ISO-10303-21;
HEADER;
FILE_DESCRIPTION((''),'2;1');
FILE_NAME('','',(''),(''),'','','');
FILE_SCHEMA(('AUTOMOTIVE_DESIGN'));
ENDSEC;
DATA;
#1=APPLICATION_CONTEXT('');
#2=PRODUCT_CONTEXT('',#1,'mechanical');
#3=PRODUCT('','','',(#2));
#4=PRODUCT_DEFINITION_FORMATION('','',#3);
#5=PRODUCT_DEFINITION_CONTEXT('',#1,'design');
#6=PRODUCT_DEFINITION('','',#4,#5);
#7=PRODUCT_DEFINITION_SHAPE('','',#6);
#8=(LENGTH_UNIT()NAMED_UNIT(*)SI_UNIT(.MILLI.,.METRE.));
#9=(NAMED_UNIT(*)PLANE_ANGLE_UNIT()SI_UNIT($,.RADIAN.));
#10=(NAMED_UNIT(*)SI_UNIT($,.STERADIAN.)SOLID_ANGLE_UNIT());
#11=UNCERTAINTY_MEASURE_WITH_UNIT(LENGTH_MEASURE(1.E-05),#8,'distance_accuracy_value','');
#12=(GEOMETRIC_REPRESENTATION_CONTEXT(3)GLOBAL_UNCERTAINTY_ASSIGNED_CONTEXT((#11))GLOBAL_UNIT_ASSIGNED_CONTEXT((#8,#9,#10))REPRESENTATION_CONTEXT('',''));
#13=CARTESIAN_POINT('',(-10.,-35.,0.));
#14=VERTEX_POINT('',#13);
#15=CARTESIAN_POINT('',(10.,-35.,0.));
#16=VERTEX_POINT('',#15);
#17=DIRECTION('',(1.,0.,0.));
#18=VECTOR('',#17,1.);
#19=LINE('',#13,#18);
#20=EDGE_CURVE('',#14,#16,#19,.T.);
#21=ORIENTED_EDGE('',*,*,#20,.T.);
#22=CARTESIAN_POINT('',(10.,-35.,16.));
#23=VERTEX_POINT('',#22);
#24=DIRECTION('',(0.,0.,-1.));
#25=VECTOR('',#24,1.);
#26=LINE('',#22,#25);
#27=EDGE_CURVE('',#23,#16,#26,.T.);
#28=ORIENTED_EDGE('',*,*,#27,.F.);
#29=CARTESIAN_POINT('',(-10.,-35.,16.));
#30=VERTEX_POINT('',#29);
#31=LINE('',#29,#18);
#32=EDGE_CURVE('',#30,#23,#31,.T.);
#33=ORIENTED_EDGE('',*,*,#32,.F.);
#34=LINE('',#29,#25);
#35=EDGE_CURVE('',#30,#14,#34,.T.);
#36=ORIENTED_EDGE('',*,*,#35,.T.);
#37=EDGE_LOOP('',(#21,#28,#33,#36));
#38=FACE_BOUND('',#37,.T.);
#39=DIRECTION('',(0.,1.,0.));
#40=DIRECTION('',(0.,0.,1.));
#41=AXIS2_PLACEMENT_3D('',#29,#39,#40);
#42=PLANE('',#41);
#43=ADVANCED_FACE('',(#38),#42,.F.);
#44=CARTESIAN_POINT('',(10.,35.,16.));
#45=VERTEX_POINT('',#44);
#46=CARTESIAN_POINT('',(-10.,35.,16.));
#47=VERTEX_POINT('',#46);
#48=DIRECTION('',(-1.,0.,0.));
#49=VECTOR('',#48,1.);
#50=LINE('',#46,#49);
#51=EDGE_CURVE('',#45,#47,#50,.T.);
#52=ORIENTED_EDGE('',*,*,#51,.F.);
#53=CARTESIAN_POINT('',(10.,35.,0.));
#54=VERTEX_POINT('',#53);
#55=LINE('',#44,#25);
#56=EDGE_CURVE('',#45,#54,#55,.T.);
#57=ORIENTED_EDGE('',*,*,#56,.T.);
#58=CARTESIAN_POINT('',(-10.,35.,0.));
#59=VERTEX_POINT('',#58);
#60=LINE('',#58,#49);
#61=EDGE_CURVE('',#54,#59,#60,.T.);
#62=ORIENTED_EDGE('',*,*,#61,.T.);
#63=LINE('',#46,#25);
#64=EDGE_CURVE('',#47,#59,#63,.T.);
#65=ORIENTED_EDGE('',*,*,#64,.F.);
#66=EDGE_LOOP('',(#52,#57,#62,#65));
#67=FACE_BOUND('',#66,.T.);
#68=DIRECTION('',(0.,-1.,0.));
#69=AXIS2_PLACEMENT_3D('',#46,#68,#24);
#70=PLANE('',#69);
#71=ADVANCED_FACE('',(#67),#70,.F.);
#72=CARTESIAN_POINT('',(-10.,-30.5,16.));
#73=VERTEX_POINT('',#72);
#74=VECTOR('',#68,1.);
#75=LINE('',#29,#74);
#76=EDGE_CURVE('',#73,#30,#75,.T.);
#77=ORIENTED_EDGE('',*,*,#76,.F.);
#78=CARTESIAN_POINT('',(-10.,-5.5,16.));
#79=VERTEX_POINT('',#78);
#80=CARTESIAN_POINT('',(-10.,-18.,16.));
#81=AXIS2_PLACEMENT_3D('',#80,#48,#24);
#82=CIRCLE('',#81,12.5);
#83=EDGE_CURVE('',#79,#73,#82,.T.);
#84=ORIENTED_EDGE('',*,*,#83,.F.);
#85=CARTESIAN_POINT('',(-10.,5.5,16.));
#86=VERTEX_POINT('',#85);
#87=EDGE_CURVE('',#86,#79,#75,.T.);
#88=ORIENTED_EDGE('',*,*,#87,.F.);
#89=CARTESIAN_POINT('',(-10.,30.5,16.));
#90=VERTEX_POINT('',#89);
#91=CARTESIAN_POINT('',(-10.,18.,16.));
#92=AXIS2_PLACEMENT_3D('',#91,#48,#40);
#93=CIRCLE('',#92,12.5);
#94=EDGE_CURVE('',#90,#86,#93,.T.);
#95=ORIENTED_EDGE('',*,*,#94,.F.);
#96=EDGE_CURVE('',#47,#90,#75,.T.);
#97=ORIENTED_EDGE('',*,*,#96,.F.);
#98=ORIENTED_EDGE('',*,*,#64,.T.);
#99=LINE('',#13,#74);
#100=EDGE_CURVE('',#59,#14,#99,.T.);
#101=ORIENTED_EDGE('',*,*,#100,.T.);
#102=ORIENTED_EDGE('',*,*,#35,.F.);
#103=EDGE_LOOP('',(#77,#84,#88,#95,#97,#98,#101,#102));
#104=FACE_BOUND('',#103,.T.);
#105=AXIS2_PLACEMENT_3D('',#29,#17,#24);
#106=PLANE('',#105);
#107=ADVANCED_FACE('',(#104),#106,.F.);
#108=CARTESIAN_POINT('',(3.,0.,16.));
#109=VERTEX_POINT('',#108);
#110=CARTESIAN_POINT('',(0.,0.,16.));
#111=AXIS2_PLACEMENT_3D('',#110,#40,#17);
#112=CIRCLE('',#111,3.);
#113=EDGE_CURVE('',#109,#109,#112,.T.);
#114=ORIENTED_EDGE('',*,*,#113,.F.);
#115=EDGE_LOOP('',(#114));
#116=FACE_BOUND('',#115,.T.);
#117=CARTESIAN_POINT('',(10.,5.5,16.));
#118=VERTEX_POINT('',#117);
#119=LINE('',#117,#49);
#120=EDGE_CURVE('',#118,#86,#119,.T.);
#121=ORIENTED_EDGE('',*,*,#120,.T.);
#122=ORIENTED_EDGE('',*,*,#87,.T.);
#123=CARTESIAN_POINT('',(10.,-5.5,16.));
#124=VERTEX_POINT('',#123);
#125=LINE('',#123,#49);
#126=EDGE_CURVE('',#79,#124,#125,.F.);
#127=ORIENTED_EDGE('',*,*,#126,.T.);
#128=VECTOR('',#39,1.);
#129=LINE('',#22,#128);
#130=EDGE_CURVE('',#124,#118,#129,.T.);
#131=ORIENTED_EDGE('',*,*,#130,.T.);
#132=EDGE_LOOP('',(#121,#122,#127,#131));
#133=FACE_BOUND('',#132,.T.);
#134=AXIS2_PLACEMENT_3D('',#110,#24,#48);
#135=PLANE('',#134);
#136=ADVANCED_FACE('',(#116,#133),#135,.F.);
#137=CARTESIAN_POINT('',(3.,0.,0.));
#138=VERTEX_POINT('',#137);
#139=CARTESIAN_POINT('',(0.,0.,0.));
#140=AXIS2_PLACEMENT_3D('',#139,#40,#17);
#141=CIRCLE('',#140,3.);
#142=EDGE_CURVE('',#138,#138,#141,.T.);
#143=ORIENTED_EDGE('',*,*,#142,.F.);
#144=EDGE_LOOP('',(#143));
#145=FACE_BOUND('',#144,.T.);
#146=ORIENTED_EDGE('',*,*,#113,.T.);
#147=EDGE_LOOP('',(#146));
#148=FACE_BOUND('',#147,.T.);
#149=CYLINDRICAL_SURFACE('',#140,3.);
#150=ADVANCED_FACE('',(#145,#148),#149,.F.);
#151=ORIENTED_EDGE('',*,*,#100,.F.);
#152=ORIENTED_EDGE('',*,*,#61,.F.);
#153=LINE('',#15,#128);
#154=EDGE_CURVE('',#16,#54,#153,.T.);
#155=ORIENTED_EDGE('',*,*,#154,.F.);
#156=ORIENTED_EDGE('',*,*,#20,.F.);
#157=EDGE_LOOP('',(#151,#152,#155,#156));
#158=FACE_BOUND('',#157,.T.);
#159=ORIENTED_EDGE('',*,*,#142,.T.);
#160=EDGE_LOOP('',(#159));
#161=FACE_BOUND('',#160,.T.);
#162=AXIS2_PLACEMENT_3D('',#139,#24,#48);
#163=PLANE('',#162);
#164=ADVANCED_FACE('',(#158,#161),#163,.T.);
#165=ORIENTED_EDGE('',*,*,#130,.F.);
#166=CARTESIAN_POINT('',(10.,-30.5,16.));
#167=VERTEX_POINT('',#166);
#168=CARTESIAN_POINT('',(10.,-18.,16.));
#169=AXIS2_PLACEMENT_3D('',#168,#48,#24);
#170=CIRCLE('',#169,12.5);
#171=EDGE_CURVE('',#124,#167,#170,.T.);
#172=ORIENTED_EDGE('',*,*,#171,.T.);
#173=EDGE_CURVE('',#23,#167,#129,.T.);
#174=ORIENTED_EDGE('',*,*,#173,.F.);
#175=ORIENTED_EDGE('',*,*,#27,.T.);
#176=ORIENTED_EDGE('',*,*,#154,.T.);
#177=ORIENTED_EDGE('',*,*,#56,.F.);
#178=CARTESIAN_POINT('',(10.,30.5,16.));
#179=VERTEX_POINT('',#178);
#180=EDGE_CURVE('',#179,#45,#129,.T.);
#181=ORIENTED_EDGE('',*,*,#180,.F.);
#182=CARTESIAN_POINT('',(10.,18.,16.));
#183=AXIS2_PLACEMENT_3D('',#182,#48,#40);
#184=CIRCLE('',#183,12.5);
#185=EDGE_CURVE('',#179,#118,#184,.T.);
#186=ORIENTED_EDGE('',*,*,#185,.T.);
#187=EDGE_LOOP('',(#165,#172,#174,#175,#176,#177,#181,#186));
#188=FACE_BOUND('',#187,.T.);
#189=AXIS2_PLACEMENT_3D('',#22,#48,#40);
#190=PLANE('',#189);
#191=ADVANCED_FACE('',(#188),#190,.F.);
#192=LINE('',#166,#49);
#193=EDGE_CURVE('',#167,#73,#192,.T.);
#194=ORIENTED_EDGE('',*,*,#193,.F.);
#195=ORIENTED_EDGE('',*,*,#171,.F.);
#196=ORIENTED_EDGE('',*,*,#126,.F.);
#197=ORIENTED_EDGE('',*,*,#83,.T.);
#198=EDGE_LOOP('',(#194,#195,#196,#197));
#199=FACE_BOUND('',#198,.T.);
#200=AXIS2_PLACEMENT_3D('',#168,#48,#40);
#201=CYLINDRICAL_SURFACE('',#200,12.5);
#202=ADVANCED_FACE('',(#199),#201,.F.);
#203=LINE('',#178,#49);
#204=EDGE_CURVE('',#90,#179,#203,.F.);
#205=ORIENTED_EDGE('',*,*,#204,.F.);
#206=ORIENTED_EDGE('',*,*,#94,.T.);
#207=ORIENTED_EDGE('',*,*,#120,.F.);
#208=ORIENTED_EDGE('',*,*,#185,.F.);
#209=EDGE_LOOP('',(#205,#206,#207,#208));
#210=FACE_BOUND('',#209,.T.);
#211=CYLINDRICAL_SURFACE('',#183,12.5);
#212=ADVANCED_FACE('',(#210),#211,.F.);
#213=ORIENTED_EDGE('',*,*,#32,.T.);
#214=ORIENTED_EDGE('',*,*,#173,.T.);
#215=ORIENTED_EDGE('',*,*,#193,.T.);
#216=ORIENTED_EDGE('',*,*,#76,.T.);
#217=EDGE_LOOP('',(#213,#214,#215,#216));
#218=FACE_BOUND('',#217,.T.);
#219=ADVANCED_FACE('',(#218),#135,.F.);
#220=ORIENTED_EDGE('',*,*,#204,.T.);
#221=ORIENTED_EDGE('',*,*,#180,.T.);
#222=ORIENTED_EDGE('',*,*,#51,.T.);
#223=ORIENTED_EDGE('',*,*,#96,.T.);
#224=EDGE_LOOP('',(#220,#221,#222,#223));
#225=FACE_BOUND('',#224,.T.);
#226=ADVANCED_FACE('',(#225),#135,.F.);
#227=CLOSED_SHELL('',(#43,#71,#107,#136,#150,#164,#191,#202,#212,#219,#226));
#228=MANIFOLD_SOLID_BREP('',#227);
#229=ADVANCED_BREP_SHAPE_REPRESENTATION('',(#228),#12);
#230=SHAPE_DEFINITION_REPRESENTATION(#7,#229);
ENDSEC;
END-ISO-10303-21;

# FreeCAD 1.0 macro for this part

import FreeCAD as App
import Part
import Sketcher

doc = App.newDocument("Part")
body = doc.addObject("PartDesign::Body", "Body")

sketch1 = body.newObject("Sketcher::SketchObject", "Sketch")
sketch1.AttachmentSupport = (doc.getObject("XY_Plane"), [""])
sketch1.MapMode = "FlatFace"
sketch1.addGeometry([
    Part.LineSegment(App.Vector(-10, 35, 0), App.Vector(-10, -35, 0)),
    Part.LineSegment(App.Vector(-10, -35, 0), App.Vector(10, -35, 0)),
    Part.LineSegment(App.Vector(10, -35, 0), App.Vector(10, 35, 0)),
    Part.LineSegment(App.Vector(10, 35, 0), App.Vector(-10, 35, 0)),
], False)
sketch1.addConstraint([
    Sketcher.Constraint("Coincident", 0, 2, 1, 1),
    Sketcher.Constraint("Coincident", 1, 2, 2, 1),
    Sketcher.Constraint("Coincident", 2, 2, 3, 1),
    Sketcher.Constraint("Coincident", 3, 2, 0, 1),
    Sketcher.Constraint("Vertical", 0),
    Sketcher.Constraint("Horizontal", 1),
    Sketcher.Constraint("Vertical", 2),
    Sketcher.Constraint("Horizontal", 3),
    Sketcher.Constraint("Symmetric", 0, 2, 2, 2, -1, 1),
    Sketcher.Constraint("DistanceX", 1, 1, 1, 2, 20.0),
    Sketcher.Constraint("DistanceY", 0, 2, 0, 1, 70.0),
])
pad1 = body.newObject("PartDesign::Pad", "Pad")
pad1.Profile = sketch1
pad1.Length = 16

sketch2 = body.newObject("Sketcher::SketchObject", "Sketch001")
sketch2.AttachmentSupport = (doc.getObject("YZ_Plane"), [""])
sketch2.MapMode = "FlatFace"
sketch2.AttachmentOffset = App.Placement(App.Vector(0, 0, -10), App.Rotation())
sketch2.addGeometry([
    Part.Circle(App.Vector(18, 16, 0), App.Vector(0, 0, 1), 12),
    Part.Circle(App.Vector(-18, 16, 0), App.Vector(0, 0, 1), 12),
], False)
sketch2.addConstraint([
    Sketcher.Constraint("Equal", 0, 1),
    Sketcher.Constraint("Symmetric", 0, 3, 1, 3, -2),
    Sketcher.Constraint("Diameter", 0, 25.0),
    Sketcher.Constraint("DistanceX", -1, 1, 0, 3, 18.0),
    Sketcher.Constraint("DistanceY", -1, 1, 0, 3, 16.0),
])
pocket1 = body.newObject("PartDesign::Pocket", "Pocket")
pocket1.Profile = sketch2
pocket1.Type = "ThroughAll"
pocket1.Reversed = True

sketch3 = body.newObject("Sketcher::SketchObject", "Sketch002")
sketch3.AttachmentSupport = (doc.getObject("XY_Plane"), [""])
sketch3.MapMode = "FlatFace"
sketch3.AttachmentOffset = App.Placement(App.Vector(0, 0, 16), App.Rotation())
sketch3.addGeometry(Part.Circle(App.Vector(0, 0, 0), App.Vector(0, 0, 1), 3), False)
sketch3.addConstraint([
    Sketcher.Constraint("Coincident", 0, 3, -1, 1),
    Sketcher.Constraint("Diameter", 0, 6.0),
])
pocket2 = body.newObject("PartDesign::Pocket", "Pocket001")
pocket2.Profile = sketch3
pocket2.Type = "ThroughAll"

doc.recompute()
